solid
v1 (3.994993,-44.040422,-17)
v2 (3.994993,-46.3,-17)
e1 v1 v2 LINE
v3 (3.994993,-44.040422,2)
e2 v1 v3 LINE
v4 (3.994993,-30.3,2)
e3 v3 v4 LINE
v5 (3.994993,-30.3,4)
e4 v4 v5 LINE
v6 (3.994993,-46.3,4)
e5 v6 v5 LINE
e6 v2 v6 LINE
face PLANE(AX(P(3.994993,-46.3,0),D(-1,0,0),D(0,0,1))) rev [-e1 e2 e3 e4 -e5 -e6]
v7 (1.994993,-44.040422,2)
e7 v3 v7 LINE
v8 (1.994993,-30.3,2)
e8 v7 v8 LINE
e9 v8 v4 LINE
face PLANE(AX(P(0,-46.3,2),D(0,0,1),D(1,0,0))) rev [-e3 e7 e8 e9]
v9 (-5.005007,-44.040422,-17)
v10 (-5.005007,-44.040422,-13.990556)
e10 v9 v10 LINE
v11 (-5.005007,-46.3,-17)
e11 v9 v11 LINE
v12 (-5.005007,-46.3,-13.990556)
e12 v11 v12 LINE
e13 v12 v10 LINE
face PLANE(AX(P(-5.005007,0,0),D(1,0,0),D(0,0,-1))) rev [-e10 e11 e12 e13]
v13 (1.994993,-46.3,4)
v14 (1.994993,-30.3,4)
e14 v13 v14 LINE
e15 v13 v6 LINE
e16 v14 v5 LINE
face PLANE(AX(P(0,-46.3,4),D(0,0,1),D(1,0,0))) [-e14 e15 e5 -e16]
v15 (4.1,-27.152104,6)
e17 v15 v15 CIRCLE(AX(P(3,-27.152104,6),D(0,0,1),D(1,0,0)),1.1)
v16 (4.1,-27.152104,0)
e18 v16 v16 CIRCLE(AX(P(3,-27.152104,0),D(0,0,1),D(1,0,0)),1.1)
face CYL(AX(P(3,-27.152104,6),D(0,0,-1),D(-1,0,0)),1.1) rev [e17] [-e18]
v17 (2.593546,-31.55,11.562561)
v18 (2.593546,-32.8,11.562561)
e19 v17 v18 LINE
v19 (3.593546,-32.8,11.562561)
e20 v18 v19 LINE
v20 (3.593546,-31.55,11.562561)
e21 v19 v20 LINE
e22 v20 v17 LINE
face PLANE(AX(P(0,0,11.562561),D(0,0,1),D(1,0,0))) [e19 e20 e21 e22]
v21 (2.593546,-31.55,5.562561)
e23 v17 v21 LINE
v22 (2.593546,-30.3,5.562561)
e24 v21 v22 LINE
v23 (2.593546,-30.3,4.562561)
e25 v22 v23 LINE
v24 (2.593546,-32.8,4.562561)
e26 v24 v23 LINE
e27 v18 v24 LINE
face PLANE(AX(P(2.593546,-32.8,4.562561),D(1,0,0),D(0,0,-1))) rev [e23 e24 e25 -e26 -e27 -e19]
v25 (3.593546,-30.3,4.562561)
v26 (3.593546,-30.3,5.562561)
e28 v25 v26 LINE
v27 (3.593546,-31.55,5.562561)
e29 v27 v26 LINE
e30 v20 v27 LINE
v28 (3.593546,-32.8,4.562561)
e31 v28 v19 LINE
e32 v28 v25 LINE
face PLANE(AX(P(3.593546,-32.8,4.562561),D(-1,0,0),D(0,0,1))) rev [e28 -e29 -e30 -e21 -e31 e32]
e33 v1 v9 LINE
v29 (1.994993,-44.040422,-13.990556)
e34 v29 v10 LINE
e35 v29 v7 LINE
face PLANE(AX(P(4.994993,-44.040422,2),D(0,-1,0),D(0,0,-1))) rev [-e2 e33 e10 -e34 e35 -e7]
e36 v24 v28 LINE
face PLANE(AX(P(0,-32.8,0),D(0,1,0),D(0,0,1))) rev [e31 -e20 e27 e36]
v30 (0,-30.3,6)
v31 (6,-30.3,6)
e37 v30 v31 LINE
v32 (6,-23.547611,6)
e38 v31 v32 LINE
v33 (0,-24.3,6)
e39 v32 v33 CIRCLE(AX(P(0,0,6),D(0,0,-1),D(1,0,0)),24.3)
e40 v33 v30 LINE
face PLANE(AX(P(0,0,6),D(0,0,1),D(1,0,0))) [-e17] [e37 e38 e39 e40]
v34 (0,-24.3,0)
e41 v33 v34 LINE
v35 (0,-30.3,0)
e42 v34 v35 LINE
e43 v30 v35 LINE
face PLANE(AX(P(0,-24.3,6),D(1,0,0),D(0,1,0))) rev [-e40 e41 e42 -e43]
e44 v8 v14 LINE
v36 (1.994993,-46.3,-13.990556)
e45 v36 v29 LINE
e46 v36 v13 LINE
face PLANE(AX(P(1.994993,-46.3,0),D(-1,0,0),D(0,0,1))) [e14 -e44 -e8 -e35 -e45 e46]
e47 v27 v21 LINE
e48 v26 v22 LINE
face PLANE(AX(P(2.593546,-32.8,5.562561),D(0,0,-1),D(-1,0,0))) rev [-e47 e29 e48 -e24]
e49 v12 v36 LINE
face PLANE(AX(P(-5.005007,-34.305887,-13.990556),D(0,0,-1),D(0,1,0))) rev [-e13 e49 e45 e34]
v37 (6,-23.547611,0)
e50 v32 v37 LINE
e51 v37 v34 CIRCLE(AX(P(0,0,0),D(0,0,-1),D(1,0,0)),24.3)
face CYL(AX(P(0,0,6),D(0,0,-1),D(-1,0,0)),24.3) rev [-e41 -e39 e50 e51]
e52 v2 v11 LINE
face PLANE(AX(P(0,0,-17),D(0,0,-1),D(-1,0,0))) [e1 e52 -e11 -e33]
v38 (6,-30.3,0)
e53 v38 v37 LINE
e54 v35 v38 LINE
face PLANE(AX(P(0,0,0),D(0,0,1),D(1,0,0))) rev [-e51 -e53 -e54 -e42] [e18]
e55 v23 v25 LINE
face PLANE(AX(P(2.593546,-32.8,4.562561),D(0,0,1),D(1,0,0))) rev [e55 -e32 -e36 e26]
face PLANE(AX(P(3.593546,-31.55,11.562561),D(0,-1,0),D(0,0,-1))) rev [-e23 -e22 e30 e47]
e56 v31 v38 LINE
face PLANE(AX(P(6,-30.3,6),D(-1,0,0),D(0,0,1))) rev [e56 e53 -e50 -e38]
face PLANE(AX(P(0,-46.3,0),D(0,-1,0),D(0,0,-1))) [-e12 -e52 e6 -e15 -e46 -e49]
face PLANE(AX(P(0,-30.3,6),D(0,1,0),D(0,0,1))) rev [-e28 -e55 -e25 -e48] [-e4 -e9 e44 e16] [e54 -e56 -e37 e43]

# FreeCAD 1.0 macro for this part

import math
import FreeCAD as App
import Part
import Sketcher

V = App.Vector
Q = App.Units.Quantity


def add_polygon(sketch, points):
    """Adds a closed chain of lines whose ends are joined by coincident constraints."""
    first, n = sketch.GeometryCount, len(points)
    for a, b in zip(points, points[1:] + points[:1]):
        sketch.addGeometry(Part.LineSegment(App.Vector(*a, 0), App.Vector(*b, 0)), False)
    for i in range(n):
        sketch.addConstraint(Sketcher.Constraint("Coincident", first + i, 2, first + (i + 1) % n, 1))

doc = App.newDocument("Part")
body = doc.addObject("PartDesign::Body", "Body")

# Sketch on XY plane
sketch1 = body.newObject("Sketcher::SketchObject", "Sketch")
sketch1.AttachmentSupport = (doc.getObject("XY_Plane"), [""])
sketch1.MapMode = "FlatFace"
sketch1.addGeometry([
    Part.LineSegment(V(0, -24.3, 0), V(0, -30.3, 0)),  # 0
    Part.LineSegment(V(0, -30.3, 0), V(6, -30.3, 0)),  # 1
    Part.LineSegment(V(6, -30.3, 0), V(6, -23.5, 0)),  # 2
    Part.ArcOfCircle(Part.Circle(V(0, 0, 0), V(0, 0, 1), 24.3), math.radians(-90), math.radians(-75.71)),  # 3
    Part.Circle(V(3, -27.2, 0), V(0, 0, 1), 1.1),  # 4
], False)
sketch1.addConstraint([
    Sketcher.Constraint("Coincident", 0, 2, 1, 1),
    Sketcher.Constraint("Coincident", 1, 2, 2, 1),
    Sketcher.Constraint("Coincident", 2, 2, 3, 2),
    Sketcher.Constraint("Coincident", 3, 1, 0, 1),
    Sketcher.Constraint("Vertical", 0),
    Sketcher.Constraint("Horizontal", 1),
    Sketcher.Constraint("Vertical", 2),
    Sketcher.Constraint("Coincident", 3, 3, -1, 1),
    Sketcher.Constraint("PointOnObject", 0, 2, -2),
    Sketcher.Constraint("Equal", 1, 0),
    Sketcher.Constraint("Diameter", 4, Q("2.2 mm")),
    Sketcher.Constraint("Radius", 3, Q("24.3 mm")),
    Sketcher.Constraint("DistanceX", 1, 1, 1, 2, Q("6 mm")),
    Sketcher.Constraint("DistanceX", -1, 1, 4, 3, Q("3 mm")),
    Sketcher.Constraint("DistanceY", 4, 3, -1, 1, Q("27.152104 mm")),
])
pad1 = body.newObject("PartDesign::Pad", "Pad")
pad1.Profile = sketch1
pad1.Length = 6

# Sketch on XZ plane
sketch2 = body.newObject("Sketcher::SketchObject", "Sketch001")
sketch2.AttachmentSupport = (doc.getObject("XZ_Plane"), [""])
sketch2.MapMode = "FlatFace"
sketch2.AttachmentOffset = App.Placement(V(0, 0, 30.3), App.Rotation())
add_polygon(sketch2, [(2, 4), (2, 2), (4, 2), (4, 4)])  # lines 0-3
sketch2.addConstraint([
    Sketcher.Constraint("Vertical", 0),
    Sketcher.Constraint("Horizontal", 1),
    Sketcher.Constraint("Vertical", 2),
    Sketcher.Constraint("Horizontal", 3),
    Sketcher.Constraint("Equal", 3, 0),
    Sketcher.Constraint("DistanceX", 1, 1, 1, 2, Q("2 mm")),
    Sketcher.Constraint("DistanceY", -1, 1, 0, 2, Q("2 mm")),
    Sketcher.Constraint("DistanceX", -1, 1, 0, 2, Q("1.994993 mm")),
])
pad2 = body.newObject("PartDesign::Pad", "Pad001")
pad2.Profile = sketch2
pad2.Length = 16

# Sketch on XY plane
sketch3 = body.newObject("Sketcher::SketchObject", "Sketch002")
sketch3.AttachmentSupport = (doc.getObject("XY_Plane"), [""])
sketch3.MapMode = "FlatFace"
sketch3.AttachmentOffset = App.Placement(V(0, 0, 2), App.Rotation())
add_polygon(sketch3, [(4, -34.3), (4, -46.3), (2, -46.3), (2, -34.3)])  # lines 0-3
sketch3.addConstraint([
    Sketcher.Constraint("Vertical", 0),
    Sketcher.Constraint("Horizontal", 1),
    Sketcher.Constraint("Vertical", 2),
    Sketcher.Constraint("Horizontal", 3),
    Sketcher.Constraint("DistanceX", 1, 2, 1, 1, Q("2 mm")),
    Sketcher.Constraint("DistanceY", 0, 2, -1, 1, Q("46.3 mm")),
    Sketcher.Constraint("DistanceY", 0, 2, 0, 1, Q("11.994113 mm")),
    Sketcher.Constraint("DistanceX", -1, 1, 0, 2, Q("3.994993 mm")),
])
pad3 = body.newObject("PartDesign::Pad", "Pad002")
pad3.Profile = sketch3
pad3.Length = 19
pad3.Reversed = True

# Sketch on XZ plane
sketch4 = body.newObject("Sketcher::SketchObject", "Sketch003")
sketch4.AttachmentSupport = (doc.getObject("XZ_Plane"), [""])
sketch4.MapMode = "FlatFace"
sketch4.AttachmentOffset = App.Placement(V(0, 0, 30.3), App.Rotation())
add_polygon(sketch4, [(2.6, 5.6), (2.6, 4.6), (3.6, 4.6), (3.6, 5.6)])  # lines 0-3
sketch4.addConstraint([
    Sketcher.Constraint("Vertical", 0),
    Sketcher.Constraint("Horizontal", 1),
    Sketcher.Constraint("Vertical", 2),
    Sketcher.Constraint("Horizontal", 3),
    Sketcher.Constraint("Equal", 3, 0),
    Sketcher.Constraint("DistanceX", 1, 1, 1, 2, Q("1 mm")),
    Sketcher.Constraint("DistanceY", -1, 1, 0, 2, Q("4.562561 mm")),
    Sketcher.Constraint("DistanceX", -1, 1, 0, 2, Q("2.593546 mm")),
])
pad4 = body.newObject("PartDesign::Pad", "Pad003")
pad4.Profile = sketch4
pad4.Length = 2.5

# Sketch on XY plane
sketch5 = body.newObject("Sketcher::SketchObject", "Sketch004")
sketch5.AttachmentSupport = (doc.getObject("XY_Plane"), [""])
sketch5.MapMode = "FlatFace"
sketch5.AttachmentOffset = App.Placement(V(0, 0, 5.562561), App.Rotation())
add_polygon(sketch5, [(2.6, -31.6), (2.6, -32.8), (3.6, -32.8), (3.6, -31.6)])  # lines 0-3
sketch5.addConstraint([
    Sketcher.Constraint("Vertical", 0),
    Sketcher.Constraint("Horizontal", 1),
    Sketcher.Constraint("Vertical", 2),
    Sketcher.Constraint("Horizontal", 3),
    Sketcher.Constraint("DistanceX", 1, 1, 1, 2, Q("1 mm")),
    Sketcher.Constraint("DistanceY", 0, 2, 0, 1, Q("1.25 mm")),
    Sketcher.Constraint("DistanceY", 0, 2, -1, 1, Q("32.8 mm")),
    Sketcher.Constraint("DistanceX", -1, 1, 0, 2, Q("2.593546 mm")),
])
pad5 = body.newObject("PartDesign::Pad", "Pad004")
pad5.Profile = sketch5
pad5.Length = 6

# Sketch on YZ plane
sketch6 = body.newObject("Sketcher::SketchObject", "Sketch005")
sketch6.AttachmentSupport = (doc.getObject("YZ_Plane"), [""])
sketch6.MapMode = "FlatFace"
sketch6.AttachmentOffset = App.Placement(V(0, 0, 1.994993), App.Rotation())
add_polygon(sketch6, [(-34.3, -17), (-46.3, -17), (-46.3, -14), (-34.3, -14)])  # lines 0-3
sketch6.addConstraint([
    Sketcher.Constraint("Horizontal", 0),
    Sketcher.Constraint("Vertical", 1),
    Sketcher.Constraint("Horizontal", 2),
    Sketcher.Constraint("Vertical", 3),
    Sketcher.Constraint("DistanceY", 0, 2, -1, 1, Q("17 mm")),
    Sketcher.Constraint("DistanceX", 0, 2, -1, 1, Q("46.3 mm")),
    Sketcher.Constraint("DistanceX", 0, 2, 0, 1, Q("11.994113 mm")),
    Sketcher.Constraint("DistanceY", 1, 1, 1, 2, Q("3.009444 mm")),
])
pad6 = body.newObject("PartDesign::Pad", "Pad005")
pad6.Profile = sketch6
pad6.Length = 7
pad6.Reversed = True

# Sketch on XY plane
sketch7 = body.newObject("Sketcher::SketchObject", "Sketch006")
sketch7.AttachmentSupport = (doc.getObject("XY_Plane"), [""])
sketch7.MapMode = "FlatFace"
sketch7.addGeometry(Part.Circle(V(3, -27.2, 0), V(0, 0, 1), 1.1), False)
sketch7.addConstraint([
    Sketcher.Constraint("Diameter", 0, Q("2.2 mm")),
    Sketcher.Constraint("DistanceX", -1, 1, 0, 3, Q("3 mm")),
    Sketcher.Constraint("DistanceY", 0, 3, -1, 1, Q("27.152104 mm")),
])
pad7 = body.newObject("PartDesign::Pad", "Pad006")
pad7.Profile = sketch7
pad7.Length = 1

# Sketch on XY plane
sketch8 = body.newObject("Sketcher::SketchObject", "Sketch007")
sketch8.AttachmentSupport = (doc.getObject("XY_Plane"), [""])
sketch8.MapMode = "FlatFace"
sketch8.AttachmentOffset = App.Placement(V(0, 0, 6), App.Rotation())
sketch8.addGeometry(Part.Circle(V(3, -27.2, 0), V(0, 0, 1), 1.1), False)
sketch8.addConstraint([
    Sketcher.Constraint("Diameter", 0, Q("2.2 mm")),
    Sketcher.Constraint("DistanceX", -1, 1, 0, 3, Q("3 mm")),
    Sketcher.Constraint("DistanceY", 0, 3, -1, 1, Q("27.152104 mm")),
])
pocket1 = body.newObject("PartDesign::Pocket", "Pocket")
pocket1.Profile = sketch8
pocket1.Length = 10

# Sketch on YZ plane
sketch9 = body.newObject("Sketcher::SketchObject", "Sketch008")
sketch9.AttachmentSupport = (doc.getObject("YZ_Plane"), [""])
sketch9.MapMode = "FlatFace"
sketch9.AttachmentOffset = App.Placement(V(0, 0, -5.005007), App.Rotation())
add_polygon(sketch9, [(-34, -17), (-44, -17), (-44, 2), (-34, 2)])  # lines 0-3
sketch9.addConstraint([
    Sketcher.Constraint("Horizontal", 0),
    Sketcher.Constraint("Vertical", 1),
    Sketcher.Constraint("Horizontal", 2),
    Sketcher.Constraint("Vertical", 3),
    Sketcher.Constraint("DistanceY", 1, 1, 1, 2, Q("19 mm")),
    Sketcher.Constraint("DistanceY", 0, 2, -1, 1, Q("17 mm")),
    Sketcher.Constraint("DistanceX", 0, 2, 0, 1, Q("9.734535 mm")),
    Sketcher.Constraint("DistanceX", 0, 2, -1, 1, Q("44.040422 mm")),
])
pocket2 = body.newObject("PartDesign::Pocket", "Pocket001")
pocket2.Profile = sketch9
pocket2.Length = 10
pocket2.Reversed = True

doc.recompute()
